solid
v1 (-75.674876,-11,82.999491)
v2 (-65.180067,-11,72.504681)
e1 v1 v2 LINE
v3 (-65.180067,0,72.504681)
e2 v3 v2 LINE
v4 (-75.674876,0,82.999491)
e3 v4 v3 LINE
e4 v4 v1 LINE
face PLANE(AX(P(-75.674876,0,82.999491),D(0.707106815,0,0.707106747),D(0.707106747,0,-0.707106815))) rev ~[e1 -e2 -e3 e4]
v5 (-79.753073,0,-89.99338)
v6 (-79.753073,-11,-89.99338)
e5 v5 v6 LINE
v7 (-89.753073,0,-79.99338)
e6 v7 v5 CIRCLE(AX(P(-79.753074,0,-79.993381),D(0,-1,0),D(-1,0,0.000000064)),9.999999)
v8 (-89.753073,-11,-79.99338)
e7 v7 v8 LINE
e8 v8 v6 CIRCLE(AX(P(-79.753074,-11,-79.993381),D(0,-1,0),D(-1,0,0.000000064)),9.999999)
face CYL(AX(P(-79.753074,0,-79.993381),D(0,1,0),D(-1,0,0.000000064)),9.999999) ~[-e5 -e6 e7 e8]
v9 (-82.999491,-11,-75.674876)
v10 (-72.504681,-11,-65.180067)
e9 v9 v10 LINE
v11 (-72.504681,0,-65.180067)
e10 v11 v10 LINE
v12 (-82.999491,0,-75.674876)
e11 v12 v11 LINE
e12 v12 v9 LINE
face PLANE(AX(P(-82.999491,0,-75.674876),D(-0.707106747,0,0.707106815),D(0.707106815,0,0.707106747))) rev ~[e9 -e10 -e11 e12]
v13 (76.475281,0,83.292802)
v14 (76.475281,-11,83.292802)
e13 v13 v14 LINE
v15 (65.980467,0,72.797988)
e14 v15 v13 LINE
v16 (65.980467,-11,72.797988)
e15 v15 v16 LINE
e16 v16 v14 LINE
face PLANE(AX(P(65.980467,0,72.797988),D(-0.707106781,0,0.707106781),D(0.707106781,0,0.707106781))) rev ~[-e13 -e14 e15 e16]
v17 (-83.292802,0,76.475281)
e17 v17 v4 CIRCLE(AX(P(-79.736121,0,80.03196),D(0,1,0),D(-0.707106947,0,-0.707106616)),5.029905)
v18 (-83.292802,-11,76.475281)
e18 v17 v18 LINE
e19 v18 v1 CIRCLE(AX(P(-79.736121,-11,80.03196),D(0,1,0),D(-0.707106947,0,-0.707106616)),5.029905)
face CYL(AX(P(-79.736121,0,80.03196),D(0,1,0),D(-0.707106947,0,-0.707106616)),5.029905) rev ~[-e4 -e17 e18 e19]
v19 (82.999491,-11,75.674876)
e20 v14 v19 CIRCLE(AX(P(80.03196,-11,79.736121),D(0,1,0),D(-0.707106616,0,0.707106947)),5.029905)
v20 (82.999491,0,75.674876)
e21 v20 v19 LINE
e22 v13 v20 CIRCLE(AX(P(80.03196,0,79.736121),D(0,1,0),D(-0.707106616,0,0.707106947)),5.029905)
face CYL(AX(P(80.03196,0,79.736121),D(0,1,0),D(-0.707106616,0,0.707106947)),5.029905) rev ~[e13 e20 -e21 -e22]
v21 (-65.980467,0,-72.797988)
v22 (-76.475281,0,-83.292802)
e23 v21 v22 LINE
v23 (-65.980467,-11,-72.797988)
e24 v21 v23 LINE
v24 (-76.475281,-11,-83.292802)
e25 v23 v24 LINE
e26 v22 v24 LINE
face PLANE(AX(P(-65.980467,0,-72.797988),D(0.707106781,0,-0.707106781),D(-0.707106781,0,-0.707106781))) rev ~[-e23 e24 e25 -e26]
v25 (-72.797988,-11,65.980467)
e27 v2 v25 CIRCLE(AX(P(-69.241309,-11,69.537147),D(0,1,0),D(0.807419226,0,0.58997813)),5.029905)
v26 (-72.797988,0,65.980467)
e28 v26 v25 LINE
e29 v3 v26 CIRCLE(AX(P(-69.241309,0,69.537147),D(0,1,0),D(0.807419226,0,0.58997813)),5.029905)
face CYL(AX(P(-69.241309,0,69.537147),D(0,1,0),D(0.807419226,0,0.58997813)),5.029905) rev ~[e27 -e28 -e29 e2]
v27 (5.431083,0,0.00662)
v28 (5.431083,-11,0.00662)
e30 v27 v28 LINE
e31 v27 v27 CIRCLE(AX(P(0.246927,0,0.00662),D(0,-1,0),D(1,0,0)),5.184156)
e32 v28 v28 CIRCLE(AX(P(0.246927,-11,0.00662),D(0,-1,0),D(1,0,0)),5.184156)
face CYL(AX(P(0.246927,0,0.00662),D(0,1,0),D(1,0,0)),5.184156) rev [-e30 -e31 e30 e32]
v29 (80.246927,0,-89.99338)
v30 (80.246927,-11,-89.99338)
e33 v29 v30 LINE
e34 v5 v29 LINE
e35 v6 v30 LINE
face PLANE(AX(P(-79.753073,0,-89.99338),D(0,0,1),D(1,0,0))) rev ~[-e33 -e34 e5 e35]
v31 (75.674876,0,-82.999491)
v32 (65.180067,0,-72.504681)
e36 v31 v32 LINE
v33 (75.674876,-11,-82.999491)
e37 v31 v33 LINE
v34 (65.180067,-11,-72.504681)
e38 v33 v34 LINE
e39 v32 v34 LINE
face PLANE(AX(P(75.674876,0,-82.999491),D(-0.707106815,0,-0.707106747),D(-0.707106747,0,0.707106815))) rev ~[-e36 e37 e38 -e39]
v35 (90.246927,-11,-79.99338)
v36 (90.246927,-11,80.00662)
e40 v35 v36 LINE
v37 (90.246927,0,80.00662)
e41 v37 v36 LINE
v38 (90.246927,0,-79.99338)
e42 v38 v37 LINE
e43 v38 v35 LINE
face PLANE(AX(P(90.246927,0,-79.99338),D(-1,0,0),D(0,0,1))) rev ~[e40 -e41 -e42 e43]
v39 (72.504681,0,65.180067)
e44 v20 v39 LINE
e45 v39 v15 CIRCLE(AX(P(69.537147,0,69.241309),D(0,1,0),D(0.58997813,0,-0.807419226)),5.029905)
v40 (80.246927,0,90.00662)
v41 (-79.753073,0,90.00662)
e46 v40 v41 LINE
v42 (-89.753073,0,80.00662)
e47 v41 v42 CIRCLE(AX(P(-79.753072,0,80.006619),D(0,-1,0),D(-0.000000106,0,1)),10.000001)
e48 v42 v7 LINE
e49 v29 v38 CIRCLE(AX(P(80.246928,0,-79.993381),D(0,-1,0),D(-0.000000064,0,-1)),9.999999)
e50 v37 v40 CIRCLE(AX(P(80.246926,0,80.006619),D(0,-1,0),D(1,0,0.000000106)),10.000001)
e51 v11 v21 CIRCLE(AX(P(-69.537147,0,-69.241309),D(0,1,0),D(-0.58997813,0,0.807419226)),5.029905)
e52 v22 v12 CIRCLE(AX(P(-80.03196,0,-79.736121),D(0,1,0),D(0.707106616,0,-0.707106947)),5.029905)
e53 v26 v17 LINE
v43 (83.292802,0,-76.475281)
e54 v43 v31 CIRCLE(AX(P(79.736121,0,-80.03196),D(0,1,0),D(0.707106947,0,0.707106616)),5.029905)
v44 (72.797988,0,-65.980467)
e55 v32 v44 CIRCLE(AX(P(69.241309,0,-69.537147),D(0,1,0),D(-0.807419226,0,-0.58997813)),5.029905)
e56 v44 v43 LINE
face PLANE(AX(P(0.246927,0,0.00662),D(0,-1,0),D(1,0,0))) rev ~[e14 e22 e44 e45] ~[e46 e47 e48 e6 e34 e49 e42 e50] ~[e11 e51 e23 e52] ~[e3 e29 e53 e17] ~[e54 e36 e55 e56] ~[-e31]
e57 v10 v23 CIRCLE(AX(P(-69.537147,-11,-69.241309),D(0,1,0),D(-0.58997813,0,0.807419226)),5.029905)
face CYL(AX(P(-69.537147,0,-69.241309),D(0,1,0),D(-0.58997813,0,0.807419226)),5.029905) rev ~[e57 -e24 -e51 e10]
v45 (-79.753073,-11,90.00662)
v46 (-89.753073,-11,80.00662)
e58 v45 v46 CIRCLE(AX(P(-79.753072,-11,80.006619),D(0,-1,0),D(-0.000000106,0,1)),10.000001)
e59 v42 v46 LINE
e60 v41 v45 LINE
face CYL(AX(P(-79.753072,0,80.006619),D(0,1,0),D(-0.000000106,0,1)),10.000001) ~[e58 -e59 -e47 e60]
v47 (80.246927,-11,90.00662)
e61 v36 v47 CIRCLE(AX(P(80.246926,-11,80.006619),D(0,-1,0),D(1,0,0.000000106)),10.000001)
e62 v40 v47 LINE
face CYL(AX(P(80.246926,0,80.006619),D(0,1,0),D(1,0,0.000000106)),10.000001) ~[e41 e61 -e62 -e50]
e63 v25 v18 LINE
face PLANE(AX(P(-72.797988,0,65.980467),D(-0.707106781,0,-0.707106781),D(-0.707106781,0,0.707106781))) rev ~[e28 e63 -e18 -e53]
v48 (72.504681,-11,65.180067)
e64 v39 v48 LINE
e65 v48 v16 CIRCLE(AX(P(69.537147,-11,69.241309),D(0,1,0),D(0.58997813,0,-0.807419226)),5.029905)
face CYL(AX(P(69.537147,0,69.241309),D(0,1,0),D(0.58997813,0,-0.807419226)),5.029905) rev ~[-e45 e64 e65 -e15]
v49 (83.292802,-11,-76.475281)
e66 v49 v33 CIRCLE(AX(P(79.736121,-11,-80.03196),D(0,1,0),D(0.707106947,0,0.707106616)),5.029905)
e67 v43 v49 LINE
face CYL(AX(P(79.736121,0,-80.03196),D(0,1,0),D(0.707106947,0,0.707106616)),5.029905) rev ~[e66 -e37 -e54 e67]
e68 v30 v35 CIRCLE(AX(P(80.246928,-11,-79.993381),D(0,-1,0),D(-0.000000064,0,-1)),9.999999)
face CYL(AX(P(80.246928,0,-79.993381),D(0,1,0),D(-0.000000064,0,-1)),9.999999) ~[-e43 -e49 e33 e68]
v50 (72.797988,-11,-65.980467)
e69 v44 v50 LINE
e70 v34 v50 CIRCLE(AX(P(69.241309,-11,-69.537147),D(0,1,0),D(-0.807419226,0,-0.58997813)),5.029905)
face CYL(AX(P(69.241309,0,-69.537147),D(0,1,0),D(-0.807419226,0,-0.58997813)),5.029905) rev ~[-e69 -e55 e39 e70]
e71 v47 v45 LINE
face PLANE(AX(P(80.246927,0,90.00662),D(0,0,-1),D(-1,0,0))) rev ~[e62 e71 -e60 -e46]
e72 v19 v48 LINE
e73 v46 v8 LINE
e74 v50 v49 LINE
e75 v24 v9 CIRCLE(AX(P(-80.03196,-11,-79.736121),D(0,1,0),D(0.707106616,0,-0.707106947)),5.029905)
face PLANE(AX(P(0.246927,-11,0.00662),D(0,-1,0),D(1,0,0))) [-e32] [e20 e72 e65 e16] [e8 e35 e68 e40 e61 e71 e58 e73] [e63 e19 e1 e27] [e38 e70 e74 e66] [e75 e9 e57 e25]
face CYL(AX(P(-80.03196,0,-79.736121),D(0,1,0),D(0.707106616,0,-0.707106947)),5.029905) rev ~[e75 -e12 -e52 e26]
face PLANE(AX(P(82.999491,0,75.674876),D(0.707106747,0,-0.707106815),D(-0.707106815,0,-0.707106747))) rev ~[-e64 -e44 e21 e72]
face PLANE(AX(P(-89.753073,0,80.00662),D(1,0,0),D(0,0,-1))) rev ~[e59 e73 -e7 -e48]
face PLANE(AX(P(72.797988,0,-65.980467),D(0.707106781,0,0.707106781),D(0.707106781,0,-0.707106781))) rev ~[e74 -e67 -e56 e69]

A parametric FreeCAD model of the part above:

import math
import FreeCAD as App
import Part
import Sketcher

V = App.Vector
Q = App.Units.Quantity

doc = App.newDocument("Part")
params = doc.addObject("Spreadsheet::Sheet", "Params")
for row, (alias, value) in enumerate([
    ("sketch1_radius", "10.000001 mm"),
    ("sketch1_width", "160 mm"),
    ("pad1_length", "11 mm"),
], start=1):
    params.set(f"A{row}", alias)
    params.set(f"B{row}", "=" + value)
    params.setAlias(f"B{row}", alias)

body = doc.addObject("PartDesign::Body", "Body")

# Sketch on XZ plane
sketch1 = doc.addObject("Sketcher::SketchObject", "Sketch")
body.addObject(sketch1)
sketch1.AttachmentSupport = (doc.XZ_Plane, [""])
sketch1.MapMode = "FlatFace"
sketch1.addGeometry([
    Part.LineSegment(V(80, 90, 0), V(-80, 90, 0)),  # 0
    Part.ArcOfCircle(Part.Circle(V(-80, 80, 0), V(0, 0, 1), 10), math.radians(90), math.radians(180)),  # 1
    Part.LineSegment(V(-90, 80, 0), V(-90, -80, 0)),  # 2
    Part.ArcOfCircle(Part.Circle(V(-80, -80, 0), V(0, 0, 1), 10), math.radians(180), math.radians(270)),  # 3
    Part.LineSegment(V(-80, -90, 0), V(80, -90, 0)),  # 4
    Part.ArcOfCircle(Part.Circle(V(80, -80, 0), V(0, 0, 1), 10), math.radians(-90), math.radians(0)),  # 5
    Part.LineSegment(V(90, -80, 0), V(90, 80, 0)),  # 6
    Part.ArcOfCircle(Part.Circle(V(80, 80, 0), V(0, 0, 1), 10), math.radians(0), math.radians(90)),  # 7
    Part.ArcOfCircle(Part.Circle(V(-70, -69, 0), V(0, 0, 1), 5), math.radians(-45), math.radians(126)),  # 8
    Part.LineSegment(V(-66, -73, 0), V(-76, -83, 0)),  # 9
    Part.ArcOfCircle(Part.Circle(V(-80, -80, 0), V(0, 0, 1), 5), math.radians(126), math.radians(315)),  # 10
    Part.LineSegment(V(-83, -76, 0), V(-73, -65, 0)),  # 11
    Part.ArcOfCircle(Part.Circle(V(69, -70, 0), V(0, 0, 1), 5), math.radians(45), math.radians(216)),  # 12
    Part.LineSegment(V(73, -66, 0), V(83, -76, 0)),  # 13
    Part.ArcOfCircle(Part.Circle(V(80, -80, 0), V(0, 0, 1), 5), math.radians(-144), math.radians(45)),  # 14
    Part.LineSegment(V(76, -83, 0), V(65, -73, 0)),  # 15
    Part.ArcOfCircle(Part.Circle(V(-69, 70, 0), V(0, 0, 1), 5), math.radians(-135), math.radians(36)),  # 16
    Part.LineSegment(V(-73, 66, 0), V(-83, 76, 0)),  # 17
    Part.ArcOfCircle(Part.Circle(V(-80, 80, 0), V(0, 0, 1), 5), math.radians(36), math.radians(225)),  # 18
    Part.LineSegment(V(-76, 83, 0), V(-65, 73, 0)),  # 19
    Part.Circle(V(0, 0, 0), V(0, 0, 1), 5),  # 20
    Part.ArcOfCircle(Part.Circle(V(70, 69, 0), V(0, 0, 1), 5), math.radians(135), math.radians(306)),  # 21
    Part.LineSegment(V(66, 73, 0), V(76, 83, 0)),  # 22
    Part.ArcOfCircle(Part.Circle(V(80, 80, 0), V(0, 0, 1), 5), math.radians(-54), math.radians(135)),  # 23
    Part.LineSegment(V(83, 76, 0), V(73, 65, 0)),  # 24
], False)
sketch1.addConstraint([
    Sketcher.Constraint("Tangent", 0, 2, 1, 1),
    Sketcher.Constraint("Tangent", 1, 2, 2, 1),
    Sketcher.Constraint("Tangent", 2, 2, 3, 1),
    Sketcher.Constraint("Tangent", 3, 2, 4, 1),
    Sketcher.Constraint("Tangent", 4, 2, 5, 1),
    Sketcher.Constraint("Tangent", 5, 2, 6, 1),
    Sketcher.Constraint("Tangent", 6, 2, 7, 1),
    Sketcher.Constraint("Tangent", 7, 2, 0, 1),
    Sketcher.Constraint("Tangent", 8, 1, 9, 1),
    Sketcher.Constraint("Tangent", 9, 2, 10, 2),
    Sketcher.Constraint("Coincident", 10, 1, 11, 1),
    Sketcher.Constraint("Coincident", 11, 2, 8, 2),
    Sketcher.Constraint("Tangent", 12, 1, 13, 1),
    Sketcher.Constraint("Tangent", 13, 2, 14, 2),
    Sketcher.Constraint("Coincident", 14, 1, 15, 1),
    Sketcher.Constraint("Coincident", 15, 2, 12, 2),
    Sketcher.Constraint("Tangent", 16, 1, 17, 1),
    Sketcher.Constraint("Tangent", 17, 2, 18, 2),
    Sketcher.Constraint("Coincident", 18, 1, 19, 1),
    Sketcher.Constraint("Coincident", 19, 2, 16, 2),
    Sketcher.Constraint("Tangent", 21, 1, 22, 1),
    Sketcher.Constraint("Tangent", 22, 2, 23, 2),
    Sketcher.Constraint("Coincident", 23, 1, 24, 1),
    Sketcher.Constraint("Coincident", 24, 2, 21, 2),
    Sketcher.Constraint("Horizontal", 0),
    Sketcher.Constraint("Vertical", 2),
    Sketcher.Constraint("Horizontal", 4),
    Sketcher.Constraint("Vertical", 6),
    Sketcher.Constraint("Equal", 1, 3),
    Sketcher.Constraint("Equal", 3, 5),
    Sketcher.Constraint("Equal", 5, 7),
    Sketcher.Constraint("Equal", 8, 10),
    Sketcher.Constraint("Equal", 10, 12),
    Sketcher.Constraint("Equal", 12, 14),
    Sketcher.Constraint("Equal", 14, 16),
    Sketcher.Constraint("Equal", 16, 18),
    Sketcher.Constraint("Equal", 18, 21),
    Sketcher.Constraint("Equal", 21, 23),
    Sketcher.Constraint("Symmetric", 12, 3, 16, 3, -1, 1),
    Sketcher.Constraint("Symmetric", 14, 3, 18, 3, -1, 1),
    Sketcher.Constraint("Symmetric", 8, 3, 21, 3, -1, 1),
    Sketcher.Constraint("Symmetric", 10, 3, 23, 3, -1, 1),
    Sketcher.Constraint("Parallel", 9, 11),
    Sketcher.Constraint("Perpendicular", 11, 13),
    Sketcher.Constraint("Parallel", 13, 15),
    Sketcher.Constraint("Parallel", 17, 19),
    Sketcher.Constraint("Parallel", 22, 24),
    Sketcher.Constraint("Equal", 4, 2),
    Sketcher.Constraint("Equal", 9, 13),
    Sketcher.Constraint("Radius", 1, 10.000001),
    Sketcher.Constraint("DistanceX", 0, 2, 0, 1, 160.0),
    Sketcher.Constraint("Angle", 9, Q("-135 deg")),
    Sketcher.Constraint("DistanceX", 1, 3, 20, 3, 79.999999),
    Sketcher.Constraint("DistanceY", 20, 3, 1, 3, 79.999999),
    Sketcher.Constraint("Diameter", 20, 10.368312),
    Sketcher.Constraint("Radius", 8, 5.029905),
    Sketcher.Constraint("Distance", 11, 14.841902),
    Sketcher.Constraint("DistanceY", 9, 2, -1, 1, 83.292802),
    Sketcher.Constraint("DistanceX", -1, 1, 13, 2, 83.292802),
    Sketcher.Constraint("DistanceY", 20, 3, 23, 3, 79.729501),
    Sketcher.Constraint("DistanceY", 5, 3, 13, 2, 3.5181),
    Sketcher.Constraint("DistanceY", 5, 3, 15, 2, 7.4887),
    Sketcher.Constraint("DistanceX", 1, 3, -1, 1, 79.753072),
    Sketcher.Constraint("DistanceX", 10, 3, -1, 1, 80.03196),
    Sketcher.Constraint("DistanceX", 10, 1, -1, 1, 82.999491),
    Sketcher.Constraint("DistanceY", -1, 1, 18, 1, 82.999491),
    Sketcher.Constraint("DistanceX", -1, 1, 23, 1, 82.999491),
])
sketch1.setExpression("Constraints[49]", "Params.sketch1_radius")
sketch1.setExpression("Constraints[50]", "Params.sketch1_width")
pad1 = doc.addObject("PartDesign::Pad", "Pad")
body.addObject(pad1)
pad1.Profile = sketch1
pad1.setExpression("Length", "Params.pad1_length")

doc.recompute()
